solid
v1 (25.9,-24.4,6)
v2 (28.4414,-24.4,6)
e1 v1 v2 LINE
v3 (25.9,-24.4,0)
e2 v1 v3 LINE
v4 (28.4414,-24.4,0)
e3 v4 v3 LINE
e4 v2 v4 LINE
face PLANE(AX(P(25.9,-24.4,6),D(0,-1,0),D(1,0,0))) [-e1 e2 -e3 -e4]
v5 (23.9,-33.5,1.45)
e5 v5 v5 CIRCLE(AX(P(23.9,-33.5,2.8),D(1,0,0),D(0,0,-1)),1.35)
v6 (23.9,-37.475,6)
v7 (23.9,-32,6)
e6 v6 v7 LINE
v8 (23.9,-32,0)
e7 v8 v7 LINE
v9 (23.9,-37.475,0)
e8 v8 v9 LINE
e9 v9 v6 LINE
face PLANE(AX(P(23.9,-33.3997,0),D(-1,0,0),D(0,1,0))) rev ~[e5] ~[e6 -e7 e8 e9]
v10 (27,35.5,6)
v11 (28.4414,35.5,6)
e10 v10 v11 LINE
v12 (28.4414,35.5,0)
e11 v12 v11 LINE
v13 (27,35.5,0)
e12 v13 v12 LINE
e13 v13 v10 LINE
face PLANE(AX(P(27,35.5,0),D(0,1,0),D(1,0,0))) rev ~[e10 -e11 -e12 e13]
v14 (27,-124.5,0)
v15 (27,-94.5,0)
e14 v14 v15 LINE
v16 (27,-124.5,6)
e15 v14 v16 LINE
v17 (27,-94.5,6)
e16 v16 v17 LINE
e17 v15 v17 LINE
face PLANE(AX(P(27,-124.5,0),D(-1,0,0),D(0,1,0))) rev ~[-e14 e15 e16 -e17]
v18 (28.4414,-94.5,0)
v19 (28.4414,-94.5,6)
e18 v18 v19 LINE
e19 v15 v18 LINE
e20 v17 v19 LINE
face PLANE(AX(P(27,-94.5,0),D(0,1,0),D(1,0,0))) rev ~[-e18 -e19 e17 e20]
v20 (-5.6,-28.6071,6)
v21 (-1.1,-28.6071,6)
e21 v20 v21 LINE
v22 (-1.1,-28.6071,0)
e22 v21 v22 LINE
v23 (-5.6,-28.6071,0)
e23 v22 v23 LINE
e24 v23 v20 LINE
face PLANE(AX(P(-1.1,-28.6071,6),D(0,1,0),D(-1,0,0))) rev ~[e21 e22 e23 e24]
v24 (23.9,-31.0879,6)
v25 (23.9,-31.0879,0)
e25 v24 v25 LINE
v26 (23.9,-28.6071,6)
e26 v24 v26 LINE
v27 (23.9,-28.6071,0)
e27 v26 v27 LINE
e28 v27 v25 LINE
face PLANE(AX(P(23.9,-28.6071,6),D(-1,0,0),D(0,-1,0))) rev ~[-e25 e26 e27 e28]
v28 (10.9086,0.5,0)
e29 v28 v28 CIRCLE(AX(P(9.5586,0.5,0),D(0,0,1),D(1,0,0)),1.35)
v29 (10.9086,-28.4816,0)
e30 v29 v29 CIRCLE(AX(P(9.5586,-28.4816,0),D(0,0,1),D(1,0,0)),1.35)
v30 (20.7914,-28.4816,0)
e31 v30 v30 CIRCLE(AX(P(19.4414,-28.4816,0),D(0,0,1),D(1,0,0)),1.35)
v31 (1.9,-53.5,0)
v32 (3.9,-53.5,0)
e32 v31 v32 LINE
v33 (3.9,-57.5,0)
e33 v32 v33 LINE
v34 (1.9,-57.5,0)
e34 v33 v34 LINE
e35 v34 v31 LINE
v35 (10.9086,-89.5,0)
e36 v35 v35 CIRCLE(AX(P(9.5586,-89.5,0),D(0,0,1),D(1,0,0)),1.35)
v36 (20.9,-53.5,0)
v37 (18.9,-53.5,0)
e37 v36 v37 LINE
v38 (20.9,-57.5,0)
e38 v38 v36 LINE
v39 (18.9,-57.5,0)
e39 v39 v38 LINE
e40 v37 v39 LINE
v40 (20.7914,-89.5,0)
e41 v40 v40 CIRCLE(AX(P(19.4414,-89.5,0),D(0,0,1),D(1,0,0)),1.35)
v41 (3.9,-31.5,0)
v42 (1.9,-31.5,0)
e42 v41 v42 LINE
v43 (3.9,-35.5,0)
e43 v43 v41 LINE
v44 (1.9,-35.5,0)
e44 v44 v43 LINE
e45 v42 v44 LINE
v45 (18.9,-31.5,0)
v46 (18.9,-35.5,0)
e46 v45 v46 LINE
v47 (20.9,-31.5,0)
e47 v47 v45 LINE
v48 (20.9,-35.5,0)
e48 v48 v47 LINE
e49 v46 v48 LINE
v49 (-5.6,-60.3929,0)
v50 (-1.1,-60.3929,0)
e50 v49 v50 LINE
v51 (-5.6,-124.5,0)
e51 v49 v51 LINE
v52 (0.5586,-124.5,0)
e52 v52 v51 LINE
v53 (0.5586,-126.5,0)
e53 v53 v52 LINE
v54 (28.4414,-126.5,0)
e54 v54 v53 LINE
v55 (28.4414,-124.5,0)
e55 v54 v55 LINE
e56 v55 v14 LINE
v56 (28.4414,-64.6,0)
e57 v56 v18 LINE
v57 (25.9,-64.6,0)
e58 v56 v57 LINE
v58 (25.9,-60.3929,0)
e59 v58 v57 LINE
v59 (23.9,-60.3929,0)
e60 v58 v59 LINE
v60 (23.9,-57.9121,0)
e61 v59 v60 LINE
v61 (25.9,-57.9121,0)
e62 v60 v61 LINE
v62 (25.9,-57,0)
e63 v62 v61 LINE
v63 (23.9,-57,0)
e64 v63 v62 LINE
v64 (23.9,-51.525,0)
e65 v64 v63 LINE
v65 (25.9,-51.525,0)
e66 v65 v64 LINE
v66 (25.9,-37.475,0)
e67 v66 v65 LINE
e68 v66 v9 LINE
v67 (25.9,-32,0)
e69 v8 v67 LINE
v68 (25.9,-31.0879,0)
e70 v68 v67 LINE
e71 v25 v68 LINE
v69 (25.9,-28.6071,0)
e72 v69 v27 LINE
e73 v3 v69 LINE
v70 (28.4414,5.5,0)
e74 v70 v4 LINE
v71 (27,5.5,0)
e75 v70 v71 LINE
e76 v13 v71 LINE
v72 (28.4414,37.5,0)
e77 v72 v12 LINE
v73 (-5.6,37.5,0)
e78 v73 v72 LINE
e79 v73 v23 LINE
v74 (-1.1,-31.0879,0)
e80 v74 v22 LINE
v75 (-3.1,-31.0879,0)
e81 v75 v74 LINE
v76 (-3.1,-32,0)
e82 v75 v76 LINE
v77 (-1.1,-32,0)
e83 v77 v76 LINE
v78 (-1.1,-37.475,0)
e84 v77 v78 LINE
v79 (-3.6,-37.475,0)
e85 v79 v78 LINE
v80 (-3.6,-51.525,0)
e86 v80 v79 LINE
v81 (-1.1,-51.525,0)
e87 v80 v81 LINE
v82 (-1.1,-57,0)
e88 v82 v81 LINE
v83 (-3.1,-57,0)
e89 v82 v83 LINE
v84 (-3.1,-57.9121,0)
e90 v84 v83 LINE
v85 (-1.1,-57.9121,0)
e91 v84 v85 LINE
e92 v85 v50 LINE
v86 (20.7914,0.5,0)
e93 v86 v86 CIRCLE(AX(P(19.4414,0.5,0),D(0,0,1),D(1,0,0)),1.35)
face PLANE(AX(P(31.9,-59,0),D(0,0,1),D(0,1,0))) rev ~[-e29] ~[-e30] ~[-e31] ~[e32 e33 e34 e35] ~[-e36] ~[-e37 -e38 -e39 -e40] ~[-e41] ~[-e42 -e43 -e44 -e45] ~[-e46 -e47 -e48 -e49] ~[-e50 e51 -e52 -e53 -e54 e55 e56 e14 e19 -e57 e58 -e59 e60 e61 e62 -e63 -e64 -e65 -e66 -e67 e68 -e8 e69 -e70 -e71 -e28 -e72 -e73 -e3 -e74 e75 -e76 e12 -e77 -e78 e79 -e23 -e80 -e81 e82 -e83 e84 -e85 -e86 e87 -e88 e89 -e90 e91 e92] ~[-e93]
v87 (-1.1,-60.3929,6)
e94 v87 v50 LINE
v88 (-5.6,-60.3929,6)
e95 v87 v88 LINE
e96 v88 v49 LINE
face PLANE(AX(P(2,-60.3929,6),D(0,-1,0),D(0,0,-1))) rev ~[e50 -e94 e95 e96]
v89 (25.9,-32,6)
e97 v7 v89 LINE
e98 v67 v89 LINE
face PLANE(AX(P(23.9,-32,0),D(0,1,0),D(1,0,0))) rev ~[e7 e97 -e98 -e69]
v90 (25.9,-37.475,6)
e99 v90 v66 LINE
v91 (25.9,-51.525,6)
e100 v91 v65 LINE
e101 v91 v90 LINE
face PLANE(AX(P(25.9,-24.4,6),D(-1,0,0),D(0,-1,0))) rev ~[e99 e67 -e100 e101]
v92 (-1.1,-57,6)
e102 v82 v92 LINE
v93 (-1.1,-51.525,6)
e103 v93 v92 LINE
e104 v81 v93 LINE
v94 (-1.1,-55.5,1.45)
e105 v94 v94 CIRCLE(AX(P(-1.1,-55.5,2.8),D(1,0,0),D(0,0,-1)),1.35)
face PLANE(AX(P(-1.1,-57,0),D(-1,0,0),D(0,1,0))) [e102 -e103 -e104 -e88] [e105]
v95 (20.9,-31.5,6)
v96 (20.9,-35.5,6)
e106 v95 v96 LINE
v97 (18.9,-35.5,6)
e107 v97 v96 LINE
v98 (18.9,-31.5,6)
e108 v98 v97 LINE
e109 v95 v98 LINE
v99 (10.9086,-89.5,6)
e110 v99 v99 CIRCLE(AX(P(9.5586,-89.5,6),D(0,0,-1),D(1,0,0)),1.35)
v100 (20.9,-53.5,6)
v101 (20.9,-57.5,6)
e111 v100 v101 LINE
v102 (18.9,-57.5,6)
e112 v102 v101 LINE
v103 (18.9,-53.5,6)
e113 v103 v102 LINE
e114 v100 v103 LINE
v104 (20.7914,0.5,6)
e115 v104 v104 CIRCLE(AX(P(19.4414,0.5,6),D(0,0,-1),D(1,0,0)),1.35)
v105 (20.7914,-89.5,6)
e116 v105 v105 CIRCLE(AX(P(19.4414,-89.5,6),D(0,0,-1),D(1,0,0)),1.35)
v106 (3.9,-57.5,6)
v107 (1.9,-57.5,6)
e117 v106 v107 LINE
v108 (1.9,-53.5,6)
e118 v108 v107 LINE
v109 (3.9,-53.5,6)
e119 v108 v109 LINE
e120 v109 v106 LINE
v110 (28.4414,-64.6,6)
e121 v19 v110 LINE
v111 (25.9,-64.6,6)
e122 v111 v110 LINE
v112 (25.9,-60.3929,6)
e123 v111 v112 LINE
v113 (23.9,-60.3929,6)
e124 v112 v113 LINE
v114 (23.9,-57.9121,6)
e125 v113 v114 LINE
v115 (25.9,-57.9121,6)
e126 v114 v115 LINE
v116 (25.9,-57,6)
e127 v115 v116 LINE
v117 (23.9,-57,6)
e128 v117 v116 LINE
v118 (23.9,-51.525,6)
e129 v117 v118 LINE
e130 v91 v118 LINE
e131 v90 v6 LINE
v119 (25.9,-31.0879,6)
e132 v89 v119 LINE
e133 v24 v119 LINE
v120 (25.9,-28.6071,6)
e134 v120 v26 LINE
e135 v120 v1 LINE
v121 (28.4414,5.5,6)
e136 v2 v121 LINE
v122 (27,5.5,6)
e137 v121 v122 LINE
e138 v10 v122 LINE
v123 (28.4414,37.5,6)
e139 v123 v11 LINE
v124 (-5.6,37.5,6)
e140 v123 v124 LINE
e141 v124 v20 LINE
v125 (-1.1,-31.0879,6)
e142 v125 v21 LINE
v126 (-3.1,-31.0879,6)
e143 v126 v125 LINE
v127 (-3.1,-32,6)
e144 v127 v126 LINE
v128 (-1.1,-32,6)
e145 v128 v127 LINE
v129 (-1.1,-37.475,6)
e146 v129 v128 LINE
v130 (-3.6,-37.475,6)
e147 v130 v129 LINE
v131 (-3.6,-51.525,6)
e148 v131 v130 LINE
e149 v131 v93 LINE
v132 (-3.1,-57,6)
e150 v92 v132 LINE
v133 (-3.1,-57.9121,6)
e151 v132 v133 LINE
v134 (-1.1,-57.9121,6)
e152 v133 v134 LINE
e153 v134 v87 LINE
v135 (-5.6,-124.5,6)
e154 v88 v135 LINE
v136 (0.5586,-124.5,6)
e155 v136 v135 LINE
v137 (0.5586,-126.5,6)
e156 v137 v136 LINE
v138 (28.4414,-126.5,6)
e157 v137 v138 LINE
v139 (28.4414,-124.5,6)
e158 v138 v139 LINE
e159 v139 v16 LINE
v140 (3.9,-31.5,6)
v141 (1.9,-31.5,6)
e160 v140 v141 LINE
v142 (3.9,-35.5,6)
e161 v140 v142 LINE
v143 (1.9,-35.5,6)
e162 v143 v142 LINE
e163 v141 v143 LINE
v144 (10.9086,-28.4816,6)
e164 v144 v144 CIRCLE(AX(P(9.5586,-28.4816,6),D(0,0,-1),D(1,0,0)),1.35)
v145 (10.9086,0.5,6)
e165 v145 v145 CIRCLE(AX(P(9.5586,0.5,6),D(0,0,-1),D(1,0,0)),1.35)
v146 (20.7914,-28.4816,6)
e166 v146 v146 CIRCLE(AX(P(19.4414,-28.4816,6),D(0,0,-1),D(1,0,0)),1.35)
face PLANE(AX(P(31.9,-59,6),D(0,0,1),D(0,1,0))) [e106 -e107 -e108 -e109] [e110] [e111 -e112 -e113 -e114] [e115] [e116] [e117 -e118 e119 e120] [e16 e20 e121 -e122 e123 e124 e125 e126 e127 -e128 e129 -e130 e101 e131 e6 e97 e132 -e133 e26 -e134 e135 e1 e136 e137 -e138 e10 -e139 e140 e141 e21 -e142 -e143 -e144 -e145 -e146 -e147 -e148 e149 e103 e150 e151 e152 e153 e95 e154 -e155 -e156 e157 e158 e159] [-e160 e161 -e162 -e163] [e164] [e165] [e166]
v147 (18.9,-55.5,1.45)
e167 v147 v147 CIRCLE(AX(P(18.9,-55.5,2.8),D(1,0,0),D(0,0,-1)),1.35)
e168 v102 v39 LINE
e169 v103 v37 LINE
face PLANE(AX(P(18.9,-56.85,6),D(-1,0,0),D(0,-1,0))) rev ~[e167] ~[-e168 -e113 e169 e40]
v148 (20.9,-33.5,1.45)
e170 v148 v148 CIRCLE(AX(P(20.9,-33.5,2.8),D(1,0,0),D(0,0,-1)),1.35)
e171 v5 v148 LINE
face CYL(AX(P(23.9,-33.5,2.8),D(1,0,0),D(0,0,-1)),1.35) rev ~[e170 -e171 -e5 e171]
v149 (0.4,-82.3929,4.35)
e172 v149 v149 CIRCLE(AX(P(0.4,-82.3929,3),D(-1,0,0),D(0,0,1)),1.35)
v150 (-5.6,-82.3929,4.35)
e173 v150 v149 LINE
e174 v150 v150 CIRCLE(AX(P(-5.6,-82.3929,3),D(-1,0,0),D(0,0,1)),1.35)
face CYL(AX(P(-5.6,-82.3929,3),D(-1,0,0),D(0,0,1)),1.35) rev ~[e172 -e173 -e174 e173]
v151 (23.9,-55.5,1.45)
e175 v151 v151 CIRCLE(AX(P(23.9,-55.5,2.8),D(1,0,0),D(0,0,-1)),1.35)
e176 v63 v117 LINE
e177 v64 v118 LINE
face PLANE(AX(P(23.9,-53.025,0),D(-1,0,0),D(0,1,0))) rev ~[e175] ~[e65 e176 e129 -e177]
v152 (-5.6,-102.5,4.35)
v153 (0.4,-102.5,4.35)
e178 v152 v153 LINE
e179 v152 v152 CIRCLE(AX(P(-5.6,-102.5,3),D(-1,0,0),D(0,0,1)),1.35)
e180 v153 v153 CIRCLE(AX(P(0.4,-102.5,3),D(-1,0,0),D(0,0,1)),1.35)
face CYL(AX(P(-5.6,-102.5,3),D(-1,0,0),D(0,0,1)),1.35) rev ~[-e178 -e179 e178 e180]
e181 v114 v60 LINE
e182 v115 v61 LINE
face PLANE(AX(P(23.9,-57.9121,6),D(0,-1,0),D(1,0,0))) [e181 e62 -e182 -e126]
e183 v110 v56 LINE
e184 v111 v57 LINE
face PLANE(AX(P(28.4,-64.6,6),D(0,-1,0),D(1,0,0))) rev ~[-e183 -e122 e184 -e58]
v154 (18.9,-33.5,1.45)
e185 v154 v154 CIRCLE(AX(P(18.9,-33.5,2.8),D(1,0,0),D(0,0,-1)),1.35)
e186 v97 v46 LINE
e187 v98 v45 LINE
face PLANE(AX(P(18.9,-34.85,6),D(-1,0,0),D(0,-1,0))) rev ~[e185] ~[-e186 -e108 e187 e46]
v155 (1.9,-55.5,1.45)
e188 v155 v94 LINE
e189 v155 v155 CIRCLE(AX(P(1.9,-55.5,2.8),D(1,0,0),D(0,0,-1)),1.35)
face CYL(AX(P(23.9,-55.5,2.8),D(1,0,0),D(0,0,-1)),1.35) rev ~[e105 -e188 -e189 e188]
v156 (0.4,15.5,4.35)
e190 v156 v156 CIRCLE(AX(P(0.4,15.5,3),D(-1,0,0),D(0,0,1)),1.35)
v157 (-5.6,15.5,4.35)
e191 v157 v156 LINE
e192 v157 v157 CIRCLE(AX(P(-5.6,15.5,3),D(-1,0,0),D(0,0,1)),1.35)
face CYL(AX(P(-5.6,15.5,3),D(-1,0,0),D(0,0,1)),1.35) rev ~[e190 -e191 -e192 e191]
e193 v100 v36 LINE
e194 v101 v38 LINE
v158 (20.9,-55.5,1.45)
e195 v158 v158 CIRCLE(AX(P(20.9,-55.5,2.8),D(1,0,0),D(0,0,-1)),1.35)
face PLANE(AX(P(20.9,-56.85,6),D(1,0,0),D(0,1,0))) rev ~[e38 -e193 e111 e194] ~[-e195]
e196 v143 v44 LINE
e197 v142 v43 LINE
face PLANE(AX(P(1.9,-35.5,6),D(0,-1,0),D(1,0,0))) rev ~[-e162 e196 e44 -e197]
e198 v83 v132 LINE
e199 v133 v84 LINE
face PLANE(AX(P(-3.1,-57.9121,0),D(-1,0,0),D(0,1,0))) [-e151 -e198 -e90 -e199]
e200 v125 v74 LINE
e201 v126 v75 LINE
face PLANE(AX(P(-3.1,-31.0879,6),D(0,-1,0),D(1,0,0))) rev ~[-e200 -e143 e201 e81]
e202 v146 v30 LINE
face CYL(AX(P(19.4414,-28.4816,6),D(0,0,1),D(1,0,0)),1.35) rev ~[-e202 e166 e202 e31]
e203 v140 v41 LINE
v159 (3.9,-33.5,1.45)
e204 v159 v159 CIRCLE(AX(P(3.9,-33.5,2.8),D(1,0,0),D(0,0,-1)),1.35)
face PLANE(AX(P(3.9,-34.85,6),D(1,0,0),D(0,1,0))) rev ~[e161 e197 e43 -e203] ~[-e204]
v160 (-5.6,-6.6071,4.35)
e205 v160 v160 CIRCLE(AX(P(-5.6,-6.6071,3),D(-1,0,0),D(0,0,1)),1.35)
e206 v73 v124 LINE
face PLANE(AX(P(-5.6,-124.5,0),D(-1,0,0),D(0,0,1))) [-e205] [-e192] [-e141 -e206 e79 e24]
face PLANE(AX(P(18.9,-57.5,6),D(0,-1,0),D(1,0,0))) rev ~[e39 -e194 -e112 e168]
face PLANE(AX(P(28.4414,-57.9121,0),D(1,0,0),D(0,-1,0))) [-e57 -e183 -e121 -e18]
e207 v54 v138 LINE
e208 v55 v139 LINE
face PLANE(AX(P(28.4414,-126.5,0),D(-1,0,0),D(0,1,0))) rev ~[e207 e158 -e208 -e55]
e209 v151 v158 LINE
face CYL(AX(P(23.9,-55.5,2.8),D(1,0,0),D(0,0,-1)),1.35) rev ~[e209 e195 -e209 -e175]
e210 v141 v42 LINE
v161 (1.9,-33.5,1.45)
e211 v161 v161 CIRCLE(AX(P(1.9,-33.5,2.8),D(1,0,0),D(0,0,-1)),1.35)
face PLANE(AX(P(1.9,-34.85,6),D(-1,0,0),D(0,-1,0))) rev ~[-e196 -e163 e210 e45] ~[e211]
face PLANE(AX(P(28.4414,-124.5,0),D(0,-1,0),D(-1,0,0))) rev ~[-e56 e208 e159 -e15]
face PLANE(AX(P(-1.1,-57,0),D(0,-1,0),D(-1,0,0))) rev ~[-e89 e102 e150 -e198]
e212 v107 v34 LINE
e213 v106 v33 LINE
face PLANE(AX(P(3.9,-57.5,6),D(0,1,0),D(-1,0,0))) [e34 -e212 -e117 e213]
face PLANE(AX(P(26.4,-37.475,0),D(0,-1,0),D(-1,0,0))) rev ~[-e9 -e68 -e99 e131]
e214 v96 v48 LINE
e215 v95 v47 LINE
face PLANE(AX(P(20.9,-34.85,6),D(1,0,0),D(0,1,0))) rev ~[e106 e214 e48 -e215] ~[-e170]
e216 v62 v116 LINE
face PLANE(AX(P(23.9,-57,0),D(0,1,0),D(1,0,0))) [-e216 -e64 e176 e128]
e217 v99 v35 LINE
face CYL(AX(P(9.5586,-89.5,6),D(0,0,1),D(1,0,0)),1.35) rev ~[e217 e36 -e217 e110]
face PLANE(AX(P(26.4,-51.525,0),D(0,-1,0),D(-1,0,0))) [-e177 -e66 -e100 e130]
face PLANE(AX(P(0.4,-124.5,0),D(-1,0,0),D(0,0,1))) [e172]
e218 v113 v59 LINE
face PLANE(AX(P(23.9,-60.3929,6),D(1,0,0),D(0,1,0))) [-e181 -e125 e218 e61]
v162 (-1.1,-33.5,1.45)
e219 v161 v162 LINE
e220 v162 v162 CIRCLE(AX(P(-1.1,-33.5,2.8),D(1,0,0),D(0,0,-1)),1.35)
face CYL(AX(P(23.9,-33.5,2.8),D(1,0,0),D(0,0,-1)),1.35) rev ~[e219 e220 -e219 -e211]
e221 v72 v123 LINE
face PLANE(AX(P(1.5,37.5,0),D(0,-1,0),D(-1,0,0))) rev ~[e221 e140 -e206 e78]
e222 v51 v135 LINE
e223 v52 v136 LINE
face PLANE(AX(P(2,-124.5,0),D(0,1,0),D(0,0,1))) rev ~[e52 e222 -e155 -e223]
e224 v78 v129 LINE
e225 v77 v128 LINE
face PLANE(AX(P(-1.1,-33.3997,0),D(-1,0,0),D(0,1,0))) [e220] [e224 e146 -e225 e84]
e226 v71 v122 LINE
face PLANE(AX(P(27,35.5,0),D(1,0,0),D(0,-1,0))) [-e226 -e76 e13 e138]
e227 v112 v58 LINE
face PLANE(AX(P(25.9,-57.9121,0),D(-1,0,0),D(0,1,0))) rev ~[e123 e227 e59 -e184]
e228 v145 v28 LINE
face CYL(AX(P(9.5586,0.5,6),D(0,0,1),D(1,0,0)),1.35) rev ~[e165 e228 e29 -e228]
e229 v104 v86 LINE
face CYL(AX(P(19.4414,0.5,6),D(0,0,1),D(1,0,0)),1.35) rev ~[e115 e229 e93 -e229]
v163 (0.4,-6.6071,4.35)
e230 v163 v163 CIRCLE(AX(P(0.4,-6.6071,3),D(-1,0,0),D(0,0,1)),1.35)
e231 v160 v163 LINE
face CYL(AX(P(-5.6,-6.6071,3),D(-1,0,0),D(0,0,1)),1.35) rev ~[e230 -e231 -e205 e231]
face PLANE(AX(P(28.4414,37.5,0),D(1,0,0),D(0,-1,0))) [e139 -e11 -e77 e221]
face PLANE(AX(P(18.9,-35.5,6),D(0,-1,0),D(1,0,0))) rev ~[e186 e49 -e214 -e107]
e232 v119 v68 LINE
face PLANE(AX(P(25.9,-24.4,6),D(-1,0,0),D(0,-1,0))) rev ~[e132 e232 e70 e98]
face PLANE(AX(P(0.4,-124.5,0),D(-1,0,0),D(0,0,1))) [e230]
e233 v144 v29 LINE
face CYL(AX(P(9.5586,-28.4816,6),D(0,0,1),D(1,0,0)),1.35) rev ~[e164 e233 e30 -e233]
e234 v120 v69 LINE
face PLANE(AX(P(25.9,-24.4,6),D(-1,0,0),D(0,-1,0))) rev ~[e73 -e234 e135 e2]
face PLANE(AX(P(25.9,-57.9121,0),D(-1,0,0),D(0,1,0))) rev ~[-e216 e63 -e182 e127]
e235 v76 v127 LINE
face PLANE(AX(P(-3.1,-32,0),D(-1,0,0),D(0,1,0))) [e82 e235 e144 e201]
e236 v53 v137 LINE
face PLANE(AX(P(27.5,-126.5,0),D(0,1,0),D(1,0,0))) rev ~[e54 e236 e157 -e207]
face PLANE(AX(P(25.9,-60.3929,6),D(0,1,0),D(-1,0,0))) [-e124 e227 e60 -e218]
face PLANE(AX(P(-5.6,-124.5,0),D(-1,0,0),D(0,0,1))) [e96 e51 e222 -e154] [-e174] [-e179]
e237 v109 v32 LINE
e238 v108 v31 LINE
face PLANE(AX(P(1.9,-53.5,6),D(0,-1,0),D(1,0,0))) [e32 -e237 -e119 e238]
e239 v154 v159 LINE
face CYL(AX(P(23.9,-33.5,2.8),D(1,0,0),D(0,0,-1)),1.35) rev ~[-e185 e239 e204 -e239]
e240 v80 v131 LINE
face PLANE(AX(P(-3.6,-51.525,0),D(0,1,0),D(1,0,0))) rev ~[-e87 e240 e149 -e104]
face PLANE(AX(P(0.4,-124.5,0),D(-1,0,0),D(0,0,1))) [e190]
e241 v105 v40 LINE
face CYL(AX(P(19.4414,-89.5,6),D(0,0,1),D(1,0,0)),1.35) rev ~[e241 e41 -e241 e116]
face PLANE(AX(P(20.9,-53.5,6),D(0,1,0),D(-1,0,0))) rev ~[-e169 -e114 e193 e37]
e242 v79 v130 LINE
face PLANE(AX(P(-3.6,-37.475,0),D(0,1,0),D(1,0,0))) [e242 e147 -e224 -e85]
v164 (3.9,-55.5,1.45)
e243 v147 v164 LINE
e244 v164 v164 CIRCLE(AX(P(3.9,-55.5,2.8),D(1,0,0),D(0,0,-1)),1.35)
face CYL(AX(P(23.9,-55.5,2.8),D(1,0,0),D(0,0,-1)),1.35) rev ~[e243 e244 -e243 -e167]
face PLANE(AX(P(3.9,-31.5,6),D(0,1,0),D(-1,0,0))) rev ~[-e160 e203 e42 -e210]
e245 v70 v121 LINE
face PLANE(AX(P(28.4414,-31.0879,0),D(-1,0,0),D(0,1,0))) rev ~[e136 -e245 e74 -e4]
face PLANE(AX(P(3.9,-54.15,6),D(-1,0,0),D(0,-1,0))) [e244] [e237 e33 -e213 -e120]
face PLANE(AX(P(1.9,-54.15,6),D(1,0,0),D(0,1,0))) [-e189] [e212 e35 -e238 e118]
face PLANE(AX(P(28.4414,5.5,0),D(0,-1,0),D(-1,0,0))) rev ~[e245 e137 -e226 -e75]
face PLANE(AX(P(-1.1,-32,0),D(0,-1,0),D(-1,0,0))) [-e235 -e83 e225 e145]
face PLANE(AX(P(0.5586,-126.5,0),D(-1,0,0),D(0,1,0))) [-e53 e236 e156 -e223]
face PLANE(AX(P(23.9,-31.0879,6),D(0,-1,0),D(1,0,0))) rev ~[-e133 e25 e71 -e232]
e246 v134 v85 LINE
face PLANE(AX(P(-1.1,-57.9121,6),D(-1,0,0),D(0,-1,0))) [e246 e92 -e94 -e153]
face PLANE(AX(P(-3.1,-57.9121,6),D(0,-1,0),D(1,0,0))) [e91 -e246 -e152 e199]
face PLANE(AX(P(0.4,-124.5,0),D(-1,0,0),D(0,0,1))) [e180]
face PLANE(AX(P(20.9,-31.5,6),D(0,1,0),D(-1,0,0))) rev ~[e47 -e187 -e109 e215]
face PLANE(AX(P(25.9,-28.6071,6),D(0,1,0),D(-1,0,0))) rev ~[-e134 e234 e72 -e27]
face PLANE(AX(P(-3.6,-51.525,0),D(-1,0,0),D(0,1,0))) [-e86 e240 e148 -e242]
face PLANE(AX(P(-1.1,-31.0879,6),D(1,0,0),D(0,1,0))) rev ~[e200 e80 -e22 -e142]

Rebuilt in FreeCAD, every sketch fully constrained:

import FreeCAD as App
import Part
import Sketcher
Q = App.Units.Quantity


def add_polygon(sketch, points):
    """Adds a closed chain of lines whose ends are joined by coincident constraints."""
    first, n = sketch.GeometryCount, len(points)
    for a, b in zip(points, points[1:] + points[:1]):
        sketch.addGeometry(Part.LineSegment(App.Vector(*a, 0), App.Vector(*b, 0)), False)
    for i in range(n):
        sketch.addConstraint(Sketcher.Constraint("Coincident", first + i, 2, first + (i + 1) % n, 1))

doc = App.newDocument("Part")
params = doc.addObject("Spreadsheet::Sheet", "Params")
for row, (alias, value) in enumerate([
    ("sketch1_width", "2 mm"),
    ("sketch1_width2", "26 mm"),
    ("sketch1_height", "30 mm"),
    ("sketch1_width3", "2.5 mm"),
    ("sketch1_height2", "35.5 mm"),
    ("pad1_length", "6 mm"),
    ("sketch2_height", "40.2 mm"),
    ("pocket1_length", "6 mm"),
    ("sketch3_width", "2 mm"),
    ("pocket2_length", "6 mm"),
    ("sketch4_diameter", "2.7 mm"),
    ("pocket3_length", "25 mm"),
    ("sketch5_width", "2 mm"),
    ("sketch5_height", "4 mm"),
    ("pocket4_length", "10 mm"),
    ("sketch6_height", "6 mm"),
    ("pocket5_length", "1.5 mm"),
    ("sketch7_height", "6 mm"),
    ("pocket6_length", "1.5 mm"),
    ("sketch8_height", "6 mm"),
    ("pad2_length", "7.6 mm"),
    ("sketch9_diameter", "2.7 mm"),
    ("pocket7_length", "6 mm"),
    ("sketch10_diameter", "2.7 mm"),
    ("pocket8_length", "6 mm"),
    ("sketch11_diameter", "2.7 mm"),
    ("pocket9_length", "6 mm"),
], start=1):
    params.set(f"A{row}", alias)
    params.set(f"B{row}", "=" + value)
    params.setAlias(f"B{row}", alias)

body = doc.addObject("PartDesign::Body", "Body")

# Sketch on XY plane
sketch1 = doc.addObject("Sketcher::SketchObject", "Sketch")
body.addObject(sketch1)
sketch1.AttachmentSupport = (doc.XY_Plane, [""])
sketch1.MapMode = "FlatFace"
add_polygon(sketch1, [(-3.1, -32), (-1.1, -32), (-1.1, -37.5), (-3.6, -37.5), (-3.6, -51.5), (-1.1, -51.5), (-1.1, -57), (-3.1, -57), (-3.1, -92.5), (0.6, -92.5), (0.6, -94.5), (2, -94.5), (2, -124.5), (0.6, -124.5), (0.6, -126.5), (1.5, -126.5), (1.5, -128), (27.5, -128), (27.5, -126.5), (28.4, -126.5), (28.4, -124.5), (27, -124.5), (27, -94.5), (28.4, -94.5), (28.4, -57.9), (25.9, -57.9), (25.9, -57), (23.9, -57), (23.9, -51.5), (26.4, -51.5), (26.4, -37.5), (23.9, -37.5), (23.9, -32), (25.9, -32), (25.9, -31.1), (28.4, -31.1), (28.4, 5.5), (27, 5.5), (27, 35.5), (28.4, 35.5), (28.4, 37.5), (27.5, 37.5), (27.5, 39), (1.5, 39), (1.5, 37.5), (0.6, 37.5), (0.6, 35.5), (2, 35.5), (2, 5.5), (0.6, 5.5), (0.6, 3.5), (-3.1, 3.5)])  # lines 0-51
sketch1.addConstraint([
    Sketcher.Constraint("Horizontal", 0),
    Sketcher.Constraint("Vertical", 1),
    Sketcher.Constraint("Horizontal", 2),
    Sketcher.Constraint("Vertical", 3),
    Sketcher.Constraint("Horizontal", 4),
    Sketcher.Constraint("Vertical", 5),
    Sketcher.Constraint("Horizontal", 6),
    Sketcher.Constraint("Vertical", 7),
    Sketcher.Constraint("Horizontal", 8),
    Sketcher.Constraint("Vertical", 9),
    Sketcher.Constraint("Horizontal", 10),
    Sketcher.Constraint("Vertical", 11),
    Sketcher.Constraint("Horizontal", 12),
    Sketcher.Constraint("Vertical", 13),
    Sketcher.Constraint("Horizontal", 14),
    Sketcher.Constraint("Vertical", 15),
    Sketcher.Constraint("Horizontal", 16),
    Sketcher.Constraint("Vertical", 17),
    Sketcher.Constraint("Horizontal", 18),
    Sketcher.Constraint("Vertical", 19),
    Sketcher.Constraint("Horizontal", 20),
    Sketcher.Constraint("Vertical", 21),
    Sketcher.Constraint("Horizontal", 22),
    Sketcher.Constraint("Vertical", 23),
    Sketcher.Constraint("Horizontal", 24),
    Sketcher.Constraint("Vertical", 25),
    Sketcher.Constraint("Horizontal", 26),
    Sketcher.Constraint("Vertical", 27),
    Sketcher.Constraint("Horizontal", 28),
    Sketcher.Constraint("Vertical", 29),
    Sketcher.Constraint("Horizontal", 30),
    Sketcher.Constraint("Vertical", 31),
    Sketcher.Constraint("Horizontal", 32),
    Sketcher.Constraint("Vertical", 33),
    Sketcher.Constraint("Horizontal", 34),
    Sketcher.Constraint("Vertical", 35),
    Sketcher.Constraint("Horizontal", 36),
    Sketcher.Constraint("Vertical", 37),
    Sketcher.Constraint("Horizontal", 38),
    Sketcher.Constraint("Vertical", 39),
    Sketcher.Constraint("Horizontal", 40),
    Sketcher.Constraint("Vertical", 41),
    Sketcher.Constraint("Horizontal", 42),
    Sketcher.Constraint("Vertical", 43),
    Sketcher.Constraint("Horizontal", 44),
    Sketcher.Constraint("Vertical", 45),
    Sketcher.Constraint("Horizontal", 46),
    Sketcher.Constraint("Vertical", 47),
    Sketcher.Constraint("Horizontal", 48),
    Sketcher.Constraint("Vertical", 49),
    Sketcher.Constraint("Horizontal", 50),
    Sketcher.Constraint("Vertical", 51),
    Sketcher.Constraint("Horizontal", 14, 2, 17, 2),
    Sketcher.Constraint("Horizontal", 12, 2, 19, 2),
    Sketcher.Constraint("Horizontal", 10, 2, 21, 2),
    Sketcher.Constraint("Horizontal", 6, 2, 25, 2),
    Sketcher.Constraint("Horizontal", 4, 2, 27, 2),
    Sketcher.Constraint("Horizontal", 2, 2, 29, 2),
    Sketcher.Constraint("Horizontal", 0, 2, 31, 2),
    Sketcher.Constraint("Horizontal", 40, 2, 43, 2),
    Sketcher.Constraint("Horizontal", 38, 2, 45, 2),
    Sketcher.Constraint("Horizontal", 36, 2, 47, 2),
    Sketcher.Constraint("Vertical", 1, 2, 4, 2),
    Sketcher.Constraint("Vertical", 9, 2, 12, 2),
    Sketcher.Constraint("Vertical", 19, 2, 22, 2),
    Sketcher.Constraint("Vertical", 27, 2, 30, 2),
    Sketcher.Constraint("Vertical", 25, 2, 32, 2),
    Sketcher.Constraint("Vertical", 23, 2, 34, 2),
    Sketcher.Constraint("Vertical", 21, 2, 36, 2),
    Sketcher.Constraint("Vertical", 35, 2, 38, 2),
    Sketcher.Constraint("Vertical", 17, 2, 40, 2),
    Sketcher.Constraint("Vertical", 15, 2, 42, 2),
    Sketcher.Constraint("Vertical", 13, 2, 44, 2),
    Sketcher.Constraint("Vertical", 11, 2, 46, 2),
    Sketcher.Constraint("Vertical", 45, 2, 48, 2),
    Sketcher.Constraint("Vertical", 7, 2, 50, 2),
    Sketcher.Constraint("Equal", 14, 18),
    Sketcher.Constraint("Equal", 12, 20),
    Sketcher.Constraint("Equal", 6, 26),
    Sketcher.Constraint("Equal", 4, 28),
    Sketcher.Constraint("Equal", 1, 5),
    Sketcher.Constraint("Equal", 32, 9),
    Sketcher.Constraint("Equal", 9, 13),
    Sketcher.Constraint("Equal", 25, 33),
    Sketcher.Constraint("Equal", 23, 35),
    Sketcher.Constraint("Equal", 21, 37),
    Sketcher.Constraint("Equal", 19, 39),
    Sketcher.Constraint("Equal", 17, 41),
    Sketcher.Constraint("Equal", 45, 49),
    Sketcher.Constraint("DistanceX", 0, 1, 0, 2, Q("2 mm")),
    Sketcher.Constraint("DistanceX", 16, 1, 16, 2, Q("26 mm")),
    Sketcher.Constraint("DistanceY", 11, 2, 11, 1, Q("30 mm")),
    Sketcher.Constraint("DistanceX", 2, 2, 2, 1, Q("2.5 mm")),
    Sketcher.Constraint("DistanceY", 7, 2, 7, 1, Q("35.5 mm")),
    Sketcher.Constraint("DistanceY", 15, 2, 15, 1, Q("1.5 mm")),
    Sketcher.Constraint("DistanceY", 0, 2, -1, 1, Q("32 mm")),
    Sketcher.Constraint("DistanceY", 5, 2, -1, 1, Q("57 mm")),
    Sketcher.Constraint("DistanceX", -1, 1, 10, 2, Q("2 mm")),
    Sketcher.Constraint("DistanceX", -1, 1, 20, 2, Q("27 mm")),
    Sketcher.Constraint("DistanceX", 5, 2, 24, 2, Q("27 mm")),
    Sketcher.Constraint("DistanceY", 3, 2, 3, 1, Q("14.05 mm")),
    Sketcher.Constraint("DistanceX", 0, 2, -1, 1, Q("1.1 mm")),
    Sketcher.Constraint("DistanceY", 23, 1, 23, 2, Q("36.588 mm")),
    Sketcher.Constraint("DistanceX", 8, 1, 8, 2, Q("3.6586 mm")),
])
sketch1.setExpression("Constraints[141]", "Params.sketch1_width")
sketch1.setExpression("Constraints[142]", "Params.sketch1_width2")
sketch1.setExpression("Constraints[143]", "Params.sketch1_height")
sketch1.setExpression("Constraints[144]", "Params.sketch1_width3")
sketch1.setExpression("Constraints[145]", "Params.sketch1_height2")
pad1 = doc.addObject("PartDesign::Pad", "Pad")
body.addObject(pad1)
pad1.Profile = sketch1
pad1.setExpression("Length", "Params.pad1_length")

# Sketch on XY plane
sketch2 = doc.addObject("Sketcher::SketchObject", "Sketch001")
body.addObject(sketch2)
sketch2.AttachmentSupport = (doc.XY_Plane, [""])
sketch2.MapMode = "FlatFace"
sketch2.AttachmentOffset = App.Placement(App.Vector(0, 0, 6), App.Rotation())
add_polygon(sketch2, [(25.9, -24.4), (25.9, -64.6), (28.4, -64.6), (28.4, -24.4)])  # lines 0-3
sketch2.addConstraint([
    Sketcher.Constraint("Vertical", 0),
    Sketcher.Constraint("Horizontal", 1),
    Sketcher.Constraint("Vertical", 2),
    Sketcher.Constraint("Horizontal", 3),
    Sketcher.Constraint("DistanceY", 0, 2, 0, 1, Q("40.2 mm")),
    Sketcher.Constraint("DistanceX", -1, 1, 0, 2, Q("25.9 mm")),
    Sketcher.Constraint("DistanceY", 0, 2, -1, 1, Q("64.6 mm")),
    Sketcher.Constraint("DistanceX", 1, 1, 1, 2, Q("2.5414 mm")),
])
sketch2.setExpression("Constraints[8]", "Params.sketch2_height")
pocket1 = doc.addObject("PartDesign::Pocket", "Pocket")
body.addObject(pocket1)
pocket1.Profile = sketch2
pocket1.setExpression("Length", "Params.pocket1_length")

# Sketch on XY plane
sketch3 = doc.addObject("Sketcher::SketchObject", "Sketch002")
body.addObject(sketch3)
sketch3.AttachmentSupport = (doc.XY_Plane, [""])
sketch3.MapMode = "FlatFace"
sketch3.AttachmentOffset = App.Placement(App.Vector(0, 0, 6), App.Rotation())
add_polygon(sketch3, [(23.9, -28.6), (23.9, -31.1), (25.9, -31.1), (25.9, -28.6)])  # lines 0-3
add_polygon(sketch3, [(-1.1, -28.6), (-3.1, -28.6), (-3.1, -31.1), (-1.1, -31.1)])  # lines 4-7
add_polygon(sketch3, [(25.9, -60.4), (25.9, -57.9), (23.9, -57.9), (23.9, -60.4)])  # lines 8-11
add_polygon(sketch3, [(-3.1, -57.9), (-3.1, -60.4), (-1.1, -60.4), (-1.1, -57.9)])  # lines 12-15
sketch3.addConstraint([
    Sketcher.Constraint("Vertical", 0),
    Sketcher.Constraint("Horizontal", 1),
    Sketcher.Constraint("Vertical", 2),
    Sketcher.Constraint("Horizontal", 3),
    Sketcher.Constraint("Horizontal", 4),
    Sketcher.Constraint("Vertical", 5),
    Sketcher.Constraint("Horizontal", 6),
    Sketcher.Constraint("Vertical", 7),
    Sketcher.Constraint("Vertical", 8),
    Sketcher.Constraint("Horizontal", 9),
    Sketcher.Constraint("Vertical", 10),
    Sketcher.Constraint("Horizontal", 11),
    Sketcher.Constraint("Vertical", 12),
    Sketcher.Constraint("Horizontal", 13),
    Sketcher.Constraint("Vertical", 14),
    Sketcher.Constraint("Horizontal", 15),
    Sketcher.Constraint("Horizontal", 3, 2, 4, 2),
    Sketcher.Constraint("Horizontal", 1, 2, 5, 2),
    Sketcher.Constraint("Horizontal", 11, 2, 12, 2),
    Sketcher.Constraint("Horizontal", 9, 2, 14, 2),
    Sketcher.Constraint("Vertical", 2, 2, 8, 2),
    Sketcher.Constraint("Vertical", 3, 2, 9, 2),
    Sketcher.Constraint("Vertical", 5, 2, 12, 2),
    Sketcher.Constraint("Vertical", 7, 2, 13, 2),
    Sketcher.Constraint("Equal", 3, 4),
    Sketcher.Constraint("Equal", 7, 8),
    Sketcher.Constraint("DistanceX", 1, 1, 1, 2, Q("2 mm")),
    Sketcher.Constraint("DistanceX", 4, 2, 3, 2, Q("27 mm")),
    Sketcher.Constraint("DistanceX", -1, 1, 0, 2, Q("23.9 mm")),
    Sketcher.Constraint("DistanceY", 0, 2, 0, 1, Q("2.4808 mm")),
    Sketcher.Constraint("DistanceY", 0, 2, -1, 1, Q("31.088 mm")),
    Sketcher.Constraint("DistanceY", 8, 2, -1, 1, Q("57.912 mm")),
])
sketch3.setExpression("Constraints[42]", "Params.sketch3_width")
pocket2 = doc.addObject("PartDesign::Pocket", "Pocket001")
body.addObject(pocket2)
pocket2.Profile = sketch3
pocket2.setExpression("Length", "Params.pocket2_length")

# Sketch on YZ plane
sketch4 = doc.addObject("Sketcher::SketchObject", "Sketch003")
body.addObject(sketch4)
sketch4.AttachmentSupport = (doc.YZ_Plane, [""])
sketch4.MapMode = "FlatFace"
sketch4.AttachmentOffset = App.Placement(App.Vector(0, 0, 23.9), App.Rotation())
sketch4.addGeometry([
    Part.Circle(App.Vector(-33.5, 2.8, 0), App.Vector(0, 0, 1), 1.4),
    Part.Circle(App.Vector(-55.5, 2.8, 0), App.Vector(0, 0, 1), 1.4),
], False)
sketch4.addConstraint([
    Sketcher.Constraint("Equal", 0, 1),
    Sketcher.Constraint("Horizontal", 0, 3, 1, 3),
    Sketcher.Constraint("Diameter", 0, Q("2.7 mm")),
    Sketcher.Constraint("DistanceX", 1, 3, 0, 3, Q("22 mm")),
    Sketcher.Constraint("DistanceX", 0, 3, -1, 1, Q("33.5 mm")),
    Sketcher.Constraint("DistanceY", -1, 1, 0, 3, Q("2.8 mm")),
])
sketch4.setExpression("Constraints[2]", "Params.sketch4_diameter")
pocket3 = doc.addObject("PartDesign::Pocket", "Pocket002")
body.addObject(pocket3)
pocket3.Profile = sketch4
pocket3.setExpression("Length", "Params.pocket3_length")

# Sketch on XY plane
sketch5 = doc.addObject("Sketcher::SketchObject", "Sketch004")
body.addObject(sketch5)
sketch5.AttachmentSupport = (doc.XY_Plane, [""])
sketch5.MapMode = "FlatFace"
sketch5.AttachmentOffset = App.Placement(App.Vector(0, 0, 6), App.Rotation())
add_polygon(sketch5, [(20.9, -31.5), (18.9, -31.5), (18.9, -35.5), (20.9, -35.5)])  # lines 0-3
add_polygon(sketch5, [(3.9, -31.5), (1.9, -31.5), (1.9, -35.5), (3.9, -35.5)])  # lines 4-7
add_polygon(sketch5, [(20.9, -53.5), (18.9, -53.5), (18.9, -57.5), (20.9, -57.5)])  # lines 8-11
add_polygon(sketch5, [(3.9, -53.5), (1.9, -53.5), (1.9, -57.5), (3.9, -57.5)])  # lines 12-15
sketch5.addConstraint([
    Sketcher.Constraint("Horizontal", 0),
    Sketcher.Constraint("Vertical", 1),
    Sketcher.Constraint("Horizontal", 2),
    Sketcher.Constraint("Vertical", 3),
    Sketcher.Constraint("Horizontal", 4),
    Sketcher.Constraint("Vertical", 5),
    Sketcher.Constraint("Horizontal", 6),
    Sketcher.Constraint("Vertical", 7),
    Sketcher.Constraint("Horizontal", 8),
    Sketcher.Constraint("Vertical", 9),
    Sketcher.Constraint("Horizontal", 10),
    Sketcher.Constraint("Vertical", 11),
    Sketcher.Constraint("Horizontal", 12),
    Sketcher.Constraint("Vertical", 13),
    Sketcher.Constraint("Horizontal", 14),
    Sketcher.Constraint("Vertical", 15),
    Sketcher.Constraint("Horizontal", 3, 2, 4, 2),
    Sketcher.Constraint("Horizontal", 2, 2, 5, 2),
    Sketcher.Constraint("Horizontal", 11, 2, 12, 2),
    Sketcher.Constraint("Horizontal", 10, 2, 13, 2),
    Sketcher.Constraint("Vertical", 1, 2, 8, 2),
    Sketcher.Constraint("Vertical", 3, 2, 10, 2),
    Sketcher.Constraint("Vertical", 5, 2, 12, 2),
    Sketcher.Constraint("Vertical", 7, 2, 14, 2),
    Sketcher.Constraint("Equal", 2, 4),
    Sketcher.Constraint("Equal", 7, 9),
    Sketcher.Constraint("DistanceX", 0, 2, 0, 1, Q("2 mm")),
    Sketcher.Constraint("DistanceY", 1, 2, 1, 1, Q("4 mm")),
    Sketcher.Constraint("DistanceX", 4, 2, 0, 2, Q("17 mm")),
    Sketcher.Constraint("DistanceY", 8, 2, 1, 2, Q("18 mm")),
    Sketcher.Constraint("DistanceX", -1, 1, 0, 2, Q("18.9 mm")),
    Sketcher.Constraint("DistanceY", 0, 2, -1, 1, Q("31.5 mm")),
])
sketch5.setExpression("Constraints[42]", "Params.sketch5_width")
sketch5.setExpression("Constraints[43]", "Params.sketch5_height")
pocket4 = doc.addObject("PartDesign::Pocket", "Pocket003")
body.addObject(pocket4)
pocket4.Profile = sketch5
pocket4.setExpression("Length", "Params.pocket4_length")

# Sketch on XZ plane
sketch6 = doc.addObject("Sketcher::SketchObject", "Sketch005")
body.addObject(sketch6)
sketch6.AttachmentSupport = (doc.XZ_Plane, [""])
sketch6.MapMode = "FlatFace"
sketch6.AttachmentOffset = App.Placement(App.Vector(0, 0, 128), App.Rotation())
add_polygon(sketch6, [(1, 6), (1, 0), (28, 0), (28, 6)])  # lines 0-3
sketch6.addConstraint([
    Sketcher.Constraint("Vertical", 0),
    Sketcher.Constraint("Horizontal", 1),
    Sketcher.Constraint("Vertical", 2),
    Sketcher.Constraint("Horizontal", 3),
    Sketcher.Constraint("PointOnObject", 0, 2, -1),
    Sketcher.Constraint("DistanceY", 0, 2, 0, 1, Q("6 mm")),
    Sketcher.Constraint("DistanceX", 1, 1, 1, 2, Q("27.8828 mm")),
    Sketcher.Constraint("DistanceX", -1, 1, 0, 2, Q("0.5586 mm")),
])
sketch6.setExpression("Constraints[9]", "Params.sketch6_height")
pocket5 = doc.addObject("PartDesign::Pocket", "Pocket004")
body.addObject(pocket5)
pocket5.Profile = sketch6
pocket5.setExpression("Length", "Params.pocket5_length")

# Sketch on XZ plane
sketch7 = doc.addObject("Sketcher::SketchObject", "Sketch006")
body.addObject(sketch7)
sketch7.AttachmentSupport = (doc.XZ_Plane, [""])
sketch7.MapMode = "FlatFace"
sketch7.AttachmentOffset = App.Placement(App.Vector(0, 0, -39), App.Rotation())
add_polygon(sketch7, [(28, 6), (28, 0), (1, 0), (1, 6)])  # lines 0-3
sketch7.addConstraint([
    Sketcher.Constraint("Vertical", 0),
    Sketcher.Constraint("Horizontal", 1),
    Sketcher.Constraint("Vertical", 2),
    Sketcher.Constraint("Horizontal", 3),
    Sketcher.Constraint("PointOnObject", 0, 2, -1),
    Sketcher.Constraint("DistanceY", 0, 2, 0, 1, Q("6 mm")),
    Sketcher.Constraint("DistanceX", 1, 2, 1, 1, Q("27.8828 mm")),
    Sketcher.Constraint("DistanceX", -1, 1, 0, 2, Q("28.4414 mm")),
])
sketch7.setExpression("Constraints[9]", "Params.sketch7_height")
pocket6 = doc.addObject("PartDesign::Pocket", "Pocket005")
body.addObject(pocket6)
pocket6.Profile = sketch7
pocket6.setExpression("Length", "Params.pocket6_length")
pocket6.Reversed = True

# Sketch on YZ plane
sketch8 = doc.addObject("Sketcher::SketchObject", "Sketch007")
body.addObject(sketch8)
sketch8.AttachmentSupport = (doc.YZ_Plane, [""])
sketch8.MapMode = "FlatFace"
sketch8.AttachmentOffset = App.Placement(App.Vector(0, 0, 2), App.Rotation())
add_polygon(sketch8, [(-124, 6), (-60, 6), (-60, 0), (-124, 0)])  # lines 0-3
add_polygon(sketch8, [(38, 6), (38, 0), (-29, 0), (-29, 6)])  # lines 4-7
sketch8.addConstraint([
    Sketcher.Constraint("Horizontal", 0),
    Sketcher.Constraint("Vertical", 1),
    Sketcher.Constraint("Horizontal", 2),
    Sketcher.Constraint("Vertical", 3),
    Sketcher.Constraint("Vertical", 4),
    Sketcher.Constraint("Horizontal", 5),
    Sketcher.Constraint("Vertical", 6),
    Sketcher.Constraint("Horizontal", 7),
    Sketcher.Constraint("PointOnObject", 1, 2, -1),
    Sketcher.Constraint("PointOnObject", 4, 2, -1),
    Sketcher.Constraint("Horizontal", 3, 2, 6, 2),
    Sketcher.Constraint("DistanceY", 1, 2, 1, 1, Q("6 mm")),
    Sketcher.Constraint("DistanceX", 2, 2, 4, 2, Q("162 mm")),
    Sketcher.Constraint("DistanceX", 2, 2, -1, 1, Q("124.5 mm")),
    Sketcher.Constraint("DistanceX", 0, 1, 0, 2, Q("64.107 mm")),
    Sketcher.Constraint("DistanceX", 5, 2, 5, 1, Q("66.107 mm")),
])
sketch8.setExpression("Constraints[19]", "Params.sketch8_height")
pad2 = doc.addObject("PartDesign::Pad", "Pad001")
body.addObject(pad2)
pad2.Profile = sketch8
pad2.setExpression("Length", "Params.pad2_length")
pad2.Reversed = True

# Sketch on YZ plane
sketch9 = doc.addObject("Sketcher::SketchObject", "Sketch008")
body.addObject(sketch9)
sketch9.AttachmentSupport = (doc.YZ_Plane, [""])
sketch9.MapMode = "FlatFace"
sketch9.AttachmentOffset = App.Placement(App.Vector(0, 0, -5.6), App.Rotation())
sketch9.addGeometry([
    Part.Circle(App.Vector(-102.5, 3, 0), App.Vector(0, 0, 1), 1.4),
    Part.Circle(App.Vector(-6.6, 3, 0), App.Vector(0, 0, 1), 1.4),
    Part.Circle(App.Vector(-82.4, 3, 0), App.Vector(0, 0, 1), 1.4),
    Part.Circle(App.Vector(15.5, 3, 0), App.Vector(0, 0, 1), 1.4),
], False)
sketch9.addConstraint([
    Sketcher.Constraint("Equal", 0, 1),
    Sketcher.Constraint("Equal", 1, 2),
    Sketcher.Constraint("Equal", 2, 3),
    Sketcher.Constraint("Horizontal", 0, 3, 1, 3),
    Sketcher.Constraint("Horizontal", 1, 3, 2, 3),
    Sketcher.Constraint("Horizontal", 2, 3, 3, 3),
    Sketcher.Constraint("Diameter", 0, Q("2.7 mm")),
    Sketcher.Constraint("DistanceY", -1, 1, 0, 3, Q("3 mm")),
    Sketcher.Constraint("DistanceX", 0, 3, 3, 3, Q("118 mm")),
    Sketcher.Constraint("DistanceX", 0, 3, -1, 1, Q("102.5 mm")),
    Sketcher.Constraint("DistanceX", 1, 3, -1, 1, Q("6.607 mm")),
    Sketcher.Constraint("DistanceX", 2, 3, -1, 1, Q("82.393 mm")),
])
sketch9.setExpression("Constraints[6]", "Params.sketch9_diameter")
pocket7 = doc.addObject("PartDesign::Pocket", "Pocket006")
body.addObject(pocket7)
pocket7.Profile = sketch9
pocket7.setExpression("Length", "Params.pocket7_length")
pocket7.Reversed = True

# Sketch on XY plane
sketch10 = doc.addObject("Sketcher::SketchObject", "Sketch009")
body.addObject(sketch10)
sketch10.AttachmentSupport = (doc.XY_Plane, [""])
sketch10.MapMode = "FlatFace"
sketch10.AttachmentOffset = App.Placement(App.Vector(0, 0, 6), App.Rotation())
sketch10.addGeometry([
    Part.Circle(App.Vector(9.6, -89.5, 0), App.Vector(0, 0, 1), 1.4),
    Part.Circle(App.Vector(19.4, -89.5, 0), App.Vector(0, 0, 1), 1.4),
    Part.Circle(App.Vector(9.6, -28.5, 0), App.Vector(0, 0, 1), 1.4),
    Part.Circle(App.Vector(19.4, -28.5, 0), App.Vector(0, 0, 1), 1.4),
], False)
sketch10.addConstraint([
    Sketcher.Constraint("Equal", 0, 1),
    Sketcher.Constraint("Equal", 1, 2),
    Sketcher.Constraint("Equal", 2, 3),
    Sketcher.Constraint("Horizontal", 0, 3, 1, 3),
    Sketcher.Constraint("Horizontal", 2, 3, 3, 3),
    Sketcher.Constraint("Vertical", 0, 3, 2, 3),
    Sketcher.Constraint("Vertical", 1, 3, 3, 3),
    Sketcher.Constraint("Diameter", 0, Q("2.7 mm")),
    Sketcher.Constraint("DistanceY", 0, 3, -1, 1, Q("89.5 mm")),
    Sketcher.Constraint("DistanceX", -1, 1, 0, 3, Q("9.5586 mm")),
    Sketcher.Constraint("DistanceX", -1, 1, 1, 3, Q("19.4414 mm")),
    Sketcher.Constraint("DistanceY", 2, 3, -1, 1, Q("28.4816 mm")),
])
sketch10.setExpression("Constraints[7]", "Params.sketch10_diameter")
pocket8 = doc.addObject("PartDesign::Pocket", "Pocket007")
body.addObject(pocket8)
pocket8.Profile = sketch10
pocket8.setExpression("Length", "Params.pocket8_length")

# Sketch on XY plane
sketch11 = doc.addObject("Sketcher::SketchObject", "Sketch010")
body.addObject(sketch11)
sketch11.AttachmentSupport = (doc.XY_Plane, [""])
sketch11.MapMode = "FlatFace"
sketch11.AttachmentOffset = App.Placement(App.Vector(0, 0, 6), App.Rotation())
sketch11.addGeometry([
    Part.Circle(App.Vector(19.4, 0.5, 0), App.Vector(0, 0, 1), 1.4),
    Part.Circle(App.Vector(9.6, 0.5, 0), App.Vector(0, 0, 1), 1.4),
], False)
sketch11.addConstraint([
    Sketcher.Constraint("Equal", 0, 1),
    Sketcher.Constraint("Horizontal", 0, 3, 1, 3),
    Sketcher.Constraint("Diameter", 0, Q("2.7 mm")),
    Sketcher.Constraint("DistanceY", -1, 1, 0, 3, Q("0.5 mm")),
    Sketcher.Constraint("DistanceX", -1, 1, 0, 3, Q("19.4414 mm")),
    Sketcher.Constraint("DistanceX", -1, 1, 1, 3, Q("9.5586 mm")),
])
sketch11.setExpression("Constraints[2]", "Params.sketch11_diameter")
pocket9 = doc.addObject("PartDesign::Pocket", "Pocket008")
body.addObject(pocket9)
pocket9.Profile = sketch11
pocket9.setExpression("Length", "Params.pocket9_length")

doc.recompute()
